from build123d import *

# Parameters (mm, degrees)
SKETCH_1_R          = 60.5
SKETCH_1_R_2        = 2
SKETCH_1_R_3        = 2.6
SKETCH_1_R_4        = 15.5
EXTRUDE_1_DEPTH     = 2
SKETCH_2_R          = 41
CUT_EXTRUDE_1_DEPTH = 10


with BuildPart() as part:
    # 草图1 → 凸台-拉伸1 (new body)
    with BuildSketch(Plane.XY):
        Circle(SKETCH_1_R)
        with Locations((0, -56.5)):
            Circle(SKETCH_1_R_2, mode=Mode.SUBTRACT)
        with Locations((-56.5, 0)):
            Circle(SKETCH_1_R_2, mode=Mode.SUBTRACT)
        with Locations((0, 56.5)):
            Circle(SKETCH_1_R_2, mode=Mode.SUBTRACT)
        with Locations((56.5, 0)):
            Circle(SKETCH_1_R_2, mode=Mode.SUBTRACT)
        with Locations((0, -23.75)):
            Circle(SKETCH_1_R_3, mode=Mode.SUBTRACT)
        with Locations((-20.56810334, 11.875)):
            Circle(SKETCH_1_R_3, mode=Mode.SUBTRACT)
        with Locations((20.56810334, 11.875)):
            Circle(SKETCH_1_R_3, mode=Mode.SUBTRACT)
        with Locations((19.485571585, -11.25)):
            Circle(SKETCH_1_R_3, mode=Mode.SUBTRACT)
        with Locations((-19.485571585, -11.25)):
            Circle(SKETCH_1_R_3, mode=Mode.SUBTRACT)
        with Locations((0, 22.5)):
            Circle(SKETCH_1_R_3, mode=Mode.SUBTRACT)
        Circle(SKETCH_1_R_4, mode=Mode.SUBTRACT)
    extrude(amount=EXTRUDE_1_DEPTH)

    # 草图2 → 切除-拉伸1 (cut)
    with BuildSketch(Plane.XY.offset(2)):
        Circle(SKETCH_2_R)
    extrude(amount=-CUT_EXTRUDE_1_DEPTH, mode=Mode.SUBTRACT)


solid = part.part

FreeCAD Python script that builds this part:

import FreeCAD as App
import Part
import Sketcher

doc = App.newDocument("Part")
body = doc.addObject("PartDesign::Body", "Body")

# Sketch on XY plane
sketch1 = body.newObject("Sketcher::SketchObject", "Sketch")
sketch1.AttachmentSupport = (doc.getObject("XY_Plane"), [""])
sketch1.MapMode = "FlatFace"
sketch1.addGeometry([
    Part.Circle(App.Vector(0, 0, 0), App.Vector(0, 0, 1), 60.5),  # 0
    Part.Circle(App.Vector(-19.5, -11.2, 0), App.Vector(0, 0, 1), 2.6),  # 1
    Part.Circle(App.Vector(0, -56.5, 0), App.Vector(0, 0, 1), 2),  # 2
    Part.Circle(App.Vector(0, -23.8, 0), App.Vector(0, 0, 1), 2.6),  # 3
    Part.Circle(App.Vector(19.5, -11.2, 0), App.Vector(0, 0, 1), 2.6),  # 4
    Part.Circle(App.Vector(-56.5, 0, 0), App.Vector(0, 0, 1), 2),  # 5
    Part.Circle(App.Vector(-20.6, 11.9, 0), App.Vector(0, 0, 1), 2.6),  # 6
    Part.Circle(App.Vector(0, 0, 0), App.Vector(0, 0, 1), 15.5),  # 7
    Part.Circle(App.Vector(20.6, 11.9, 0), App.Vector(0, 0, 1), 2.6),  # 8
    Part.Circle(App.Vector(0, 22.5, 0), App.Vector(0, 0, 1), 2.6),  # 9
    Part.Circle(App.Vector(56.5, 0, 0), App.Vector(0, 0, 1), 2),  # 10
    Part.Circle(App.Vector(0, 56.5, 0), App.Vector(0, 0, 1), 2),  # 11
], False)
sketch1.addConstraint([
    Sketcher.Constraint("Coincident", 0, 3, -1, 1),
    Sketcher.Constraint("Coincident", 7, 3, -1, 1),
    Sketcher.Constraint("Equal", 1, 3),
    Sketcher.Constraint("Equal", 3, 4),
    Sketcher.Constraint("Equal", 2, 5),
    Sketcher.Constraint("Equal", 4, 6),
    Sketcher.Constraint("Equal", 6, 8),
    Sketcher.Constraint("Equal", 8, 9),
    Sketcher.Constraint("Equal", 5, 10),
    Sketcher.Constraint("Equal", 10, 11),
    Sketcher.Constraint("Symmetric", 5, 3, 10, 3, -1, 1),
    Sketcher.Constraint("Symmetric", 2, 3, 11, 3, -1, 1),
    Sketcher.Constraint("Symmetric", 1, 3, 4, 3, -2),
    Sketcher.Constraint("Symmetric", 6, 3, 8, 3, -2),
    Sketcher.Constraint("PointOnObject", 2, 3, -2),
    Sketcher.Constraint("PointOnObject", 3, 3, -2),
    Sketcher.Constraint("PointOnObject", 5, 3, -1),
    Sketcher.Constraint("PointOnObject", 9, 3, -2),
    Sketcher.Constraint("Diameter", 0, 121.0),
    Sketcher.Constraint("Diameter", 2, 4.0),
    Sketcher.Constraint("Diameter", 7, 31.0),
    Sketcher.Constraint("Diameter", 1, 5.2),
    Sketcher.Constraint("DistanceY", 9, 3, 11, 3, 34.0),
    Sketcher.Constraint("DistanceY", 2, 3, -1, 1, 56.5),
    Sketcher.Constraint("DistanceX", 5, 3, -1, 1, 56.5),
    Sketcher.Constraint("DistanceY", 3, 3, 1, 3, 12.5),
    Sketcher.Constraint("DistanceY", 1, 3, -1, 1, 11.25),
    Sketcher.Constraint("DistanceY", -1, 1, 6, 3, 11.875),
    Sketcher.Constraint("DistanceX", 1, 3, -1, 1, 19.485572),
    Sketcher.Constraint("DistanceX", 6, 3, 1, 3, 1.082532),
])
pad1 = body.newObject("PartDesign::Pad", "Pad")
pad1.Profile = sketch1
pad1.Length = 2

# Sketch on XY plane
sketch2 = body.newObject("Sketcher::SketchObject", "Sketch001")
sketch2.AttachmentSupport = (doc.getObject("XY_Plane"), [""])
sketch2.MapMode = "FlatFace"
sketch2.AttachmentOffset = App.Placement(App.Vector(0, 0, 2), App.Rotation())
sketch2.addGeometry(Part.Circle(App.Vector(0, 0, 0), App.Vector(0, 0, 1), 41), False)
sketch2.addConstraint([
    Sketcher.Constraint("Coincident", 0, 3, -1, 1),
    Sketcher.Constraint("Diameter", 0, 82.0),
])
pocket1 = body.newObject("PartDesign::Pocket", "Pocket")
pocket1.Profile = sketch2
pocket1.Length = 10

doc.recompute()
